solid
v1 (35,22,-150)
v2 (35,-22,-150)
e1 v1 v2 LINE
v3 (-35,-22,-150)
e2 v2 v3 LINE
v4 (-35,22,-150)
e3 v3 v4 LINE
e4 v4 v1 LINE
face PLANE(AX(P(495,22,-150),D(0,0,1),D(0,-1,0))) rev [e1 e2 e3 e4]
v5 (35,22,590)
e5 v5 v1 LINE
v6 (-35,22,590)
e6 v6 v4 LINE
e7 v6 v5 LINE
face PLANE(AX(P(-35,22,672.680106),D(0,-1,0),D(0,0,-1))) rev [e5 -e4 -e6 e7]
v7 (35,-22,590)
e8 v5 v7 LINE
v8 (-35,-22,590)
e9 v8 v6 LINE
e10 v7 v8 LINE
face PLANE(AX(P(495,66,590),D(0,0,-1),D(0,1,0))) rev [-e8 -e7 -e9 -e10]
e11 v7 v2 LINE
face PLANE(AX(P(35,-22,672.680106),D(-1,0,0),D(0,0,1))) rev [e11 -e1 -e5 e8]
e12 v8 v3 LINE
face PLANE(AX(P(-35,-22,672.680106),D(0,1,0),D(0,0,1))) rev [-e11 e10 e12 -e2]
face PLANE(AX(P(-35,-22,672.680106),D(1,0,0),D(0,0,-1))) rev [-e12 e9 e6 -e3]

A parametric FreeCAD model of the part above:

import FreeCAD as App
import Part
import Sketcher
from FreeCAD import Vector


def add_polygon(sketch, points):
    """Adds a closed chain of lines whose ends are joined by coincident constraints."""
    first, n = sketch.GeometryCount, len(points)
    for a, b in zip(points, points[1:] + points[:1]):
        sketch.addGeometry(Part.LineSegment(App.Vector(*a, 0), App.Vector(*b, 0)), False)
    for i in range(n):
        sketch.addConstraint(Sketcher.Constraint("Coincident", first + i, 2, first + (i + 1) % n, 1))

doc = App.newDocument("Part")
body = doc.addObject("PartDesign::Body", "Body")

sketch1 = body.newObject("Sketcher::SketchObject", "Sketch")
sketch1.AttachmentSupport = (doc.getObject("XY_Plane"), [""])
sketch1.MapMode = "FlatFace"
add_polygon(sketch1, [(-35, 22), (-35, -22), (35, -22), (35, 22)])
sketch1.addConstraint(Sketcher.Constraint("Vertical", 0))
sketch1.addConstraint(Sketcher.Constraint("Horizontal", 1))
sketch1.addConstraint(Sketcher.Constraint("Vertical", 2))
sketch1.addConstraint(Sketcher.Constraint("Horizontal", 3))
sketch1.addConstraint(Sketcher.Constraint("Symmetric", 0, 2, 2, 2, -1, 1))
sketch1.addConstraint(Sketcher.Constraint("DistanceX", 1, 1, 1, 2, 70.0))
sketch1.addConstraint(Sketcher.Constraint("DistanceY", 0, 2, 0, 1, 44.0))
pad1 = body.newObject("PartDesign::Pad", "Pad")
pad1.Profile = sketch1
pad1.Type = "TwoLengths"
pad1.Length = 590
pad1.Length2 = 150

doc.recompute()
